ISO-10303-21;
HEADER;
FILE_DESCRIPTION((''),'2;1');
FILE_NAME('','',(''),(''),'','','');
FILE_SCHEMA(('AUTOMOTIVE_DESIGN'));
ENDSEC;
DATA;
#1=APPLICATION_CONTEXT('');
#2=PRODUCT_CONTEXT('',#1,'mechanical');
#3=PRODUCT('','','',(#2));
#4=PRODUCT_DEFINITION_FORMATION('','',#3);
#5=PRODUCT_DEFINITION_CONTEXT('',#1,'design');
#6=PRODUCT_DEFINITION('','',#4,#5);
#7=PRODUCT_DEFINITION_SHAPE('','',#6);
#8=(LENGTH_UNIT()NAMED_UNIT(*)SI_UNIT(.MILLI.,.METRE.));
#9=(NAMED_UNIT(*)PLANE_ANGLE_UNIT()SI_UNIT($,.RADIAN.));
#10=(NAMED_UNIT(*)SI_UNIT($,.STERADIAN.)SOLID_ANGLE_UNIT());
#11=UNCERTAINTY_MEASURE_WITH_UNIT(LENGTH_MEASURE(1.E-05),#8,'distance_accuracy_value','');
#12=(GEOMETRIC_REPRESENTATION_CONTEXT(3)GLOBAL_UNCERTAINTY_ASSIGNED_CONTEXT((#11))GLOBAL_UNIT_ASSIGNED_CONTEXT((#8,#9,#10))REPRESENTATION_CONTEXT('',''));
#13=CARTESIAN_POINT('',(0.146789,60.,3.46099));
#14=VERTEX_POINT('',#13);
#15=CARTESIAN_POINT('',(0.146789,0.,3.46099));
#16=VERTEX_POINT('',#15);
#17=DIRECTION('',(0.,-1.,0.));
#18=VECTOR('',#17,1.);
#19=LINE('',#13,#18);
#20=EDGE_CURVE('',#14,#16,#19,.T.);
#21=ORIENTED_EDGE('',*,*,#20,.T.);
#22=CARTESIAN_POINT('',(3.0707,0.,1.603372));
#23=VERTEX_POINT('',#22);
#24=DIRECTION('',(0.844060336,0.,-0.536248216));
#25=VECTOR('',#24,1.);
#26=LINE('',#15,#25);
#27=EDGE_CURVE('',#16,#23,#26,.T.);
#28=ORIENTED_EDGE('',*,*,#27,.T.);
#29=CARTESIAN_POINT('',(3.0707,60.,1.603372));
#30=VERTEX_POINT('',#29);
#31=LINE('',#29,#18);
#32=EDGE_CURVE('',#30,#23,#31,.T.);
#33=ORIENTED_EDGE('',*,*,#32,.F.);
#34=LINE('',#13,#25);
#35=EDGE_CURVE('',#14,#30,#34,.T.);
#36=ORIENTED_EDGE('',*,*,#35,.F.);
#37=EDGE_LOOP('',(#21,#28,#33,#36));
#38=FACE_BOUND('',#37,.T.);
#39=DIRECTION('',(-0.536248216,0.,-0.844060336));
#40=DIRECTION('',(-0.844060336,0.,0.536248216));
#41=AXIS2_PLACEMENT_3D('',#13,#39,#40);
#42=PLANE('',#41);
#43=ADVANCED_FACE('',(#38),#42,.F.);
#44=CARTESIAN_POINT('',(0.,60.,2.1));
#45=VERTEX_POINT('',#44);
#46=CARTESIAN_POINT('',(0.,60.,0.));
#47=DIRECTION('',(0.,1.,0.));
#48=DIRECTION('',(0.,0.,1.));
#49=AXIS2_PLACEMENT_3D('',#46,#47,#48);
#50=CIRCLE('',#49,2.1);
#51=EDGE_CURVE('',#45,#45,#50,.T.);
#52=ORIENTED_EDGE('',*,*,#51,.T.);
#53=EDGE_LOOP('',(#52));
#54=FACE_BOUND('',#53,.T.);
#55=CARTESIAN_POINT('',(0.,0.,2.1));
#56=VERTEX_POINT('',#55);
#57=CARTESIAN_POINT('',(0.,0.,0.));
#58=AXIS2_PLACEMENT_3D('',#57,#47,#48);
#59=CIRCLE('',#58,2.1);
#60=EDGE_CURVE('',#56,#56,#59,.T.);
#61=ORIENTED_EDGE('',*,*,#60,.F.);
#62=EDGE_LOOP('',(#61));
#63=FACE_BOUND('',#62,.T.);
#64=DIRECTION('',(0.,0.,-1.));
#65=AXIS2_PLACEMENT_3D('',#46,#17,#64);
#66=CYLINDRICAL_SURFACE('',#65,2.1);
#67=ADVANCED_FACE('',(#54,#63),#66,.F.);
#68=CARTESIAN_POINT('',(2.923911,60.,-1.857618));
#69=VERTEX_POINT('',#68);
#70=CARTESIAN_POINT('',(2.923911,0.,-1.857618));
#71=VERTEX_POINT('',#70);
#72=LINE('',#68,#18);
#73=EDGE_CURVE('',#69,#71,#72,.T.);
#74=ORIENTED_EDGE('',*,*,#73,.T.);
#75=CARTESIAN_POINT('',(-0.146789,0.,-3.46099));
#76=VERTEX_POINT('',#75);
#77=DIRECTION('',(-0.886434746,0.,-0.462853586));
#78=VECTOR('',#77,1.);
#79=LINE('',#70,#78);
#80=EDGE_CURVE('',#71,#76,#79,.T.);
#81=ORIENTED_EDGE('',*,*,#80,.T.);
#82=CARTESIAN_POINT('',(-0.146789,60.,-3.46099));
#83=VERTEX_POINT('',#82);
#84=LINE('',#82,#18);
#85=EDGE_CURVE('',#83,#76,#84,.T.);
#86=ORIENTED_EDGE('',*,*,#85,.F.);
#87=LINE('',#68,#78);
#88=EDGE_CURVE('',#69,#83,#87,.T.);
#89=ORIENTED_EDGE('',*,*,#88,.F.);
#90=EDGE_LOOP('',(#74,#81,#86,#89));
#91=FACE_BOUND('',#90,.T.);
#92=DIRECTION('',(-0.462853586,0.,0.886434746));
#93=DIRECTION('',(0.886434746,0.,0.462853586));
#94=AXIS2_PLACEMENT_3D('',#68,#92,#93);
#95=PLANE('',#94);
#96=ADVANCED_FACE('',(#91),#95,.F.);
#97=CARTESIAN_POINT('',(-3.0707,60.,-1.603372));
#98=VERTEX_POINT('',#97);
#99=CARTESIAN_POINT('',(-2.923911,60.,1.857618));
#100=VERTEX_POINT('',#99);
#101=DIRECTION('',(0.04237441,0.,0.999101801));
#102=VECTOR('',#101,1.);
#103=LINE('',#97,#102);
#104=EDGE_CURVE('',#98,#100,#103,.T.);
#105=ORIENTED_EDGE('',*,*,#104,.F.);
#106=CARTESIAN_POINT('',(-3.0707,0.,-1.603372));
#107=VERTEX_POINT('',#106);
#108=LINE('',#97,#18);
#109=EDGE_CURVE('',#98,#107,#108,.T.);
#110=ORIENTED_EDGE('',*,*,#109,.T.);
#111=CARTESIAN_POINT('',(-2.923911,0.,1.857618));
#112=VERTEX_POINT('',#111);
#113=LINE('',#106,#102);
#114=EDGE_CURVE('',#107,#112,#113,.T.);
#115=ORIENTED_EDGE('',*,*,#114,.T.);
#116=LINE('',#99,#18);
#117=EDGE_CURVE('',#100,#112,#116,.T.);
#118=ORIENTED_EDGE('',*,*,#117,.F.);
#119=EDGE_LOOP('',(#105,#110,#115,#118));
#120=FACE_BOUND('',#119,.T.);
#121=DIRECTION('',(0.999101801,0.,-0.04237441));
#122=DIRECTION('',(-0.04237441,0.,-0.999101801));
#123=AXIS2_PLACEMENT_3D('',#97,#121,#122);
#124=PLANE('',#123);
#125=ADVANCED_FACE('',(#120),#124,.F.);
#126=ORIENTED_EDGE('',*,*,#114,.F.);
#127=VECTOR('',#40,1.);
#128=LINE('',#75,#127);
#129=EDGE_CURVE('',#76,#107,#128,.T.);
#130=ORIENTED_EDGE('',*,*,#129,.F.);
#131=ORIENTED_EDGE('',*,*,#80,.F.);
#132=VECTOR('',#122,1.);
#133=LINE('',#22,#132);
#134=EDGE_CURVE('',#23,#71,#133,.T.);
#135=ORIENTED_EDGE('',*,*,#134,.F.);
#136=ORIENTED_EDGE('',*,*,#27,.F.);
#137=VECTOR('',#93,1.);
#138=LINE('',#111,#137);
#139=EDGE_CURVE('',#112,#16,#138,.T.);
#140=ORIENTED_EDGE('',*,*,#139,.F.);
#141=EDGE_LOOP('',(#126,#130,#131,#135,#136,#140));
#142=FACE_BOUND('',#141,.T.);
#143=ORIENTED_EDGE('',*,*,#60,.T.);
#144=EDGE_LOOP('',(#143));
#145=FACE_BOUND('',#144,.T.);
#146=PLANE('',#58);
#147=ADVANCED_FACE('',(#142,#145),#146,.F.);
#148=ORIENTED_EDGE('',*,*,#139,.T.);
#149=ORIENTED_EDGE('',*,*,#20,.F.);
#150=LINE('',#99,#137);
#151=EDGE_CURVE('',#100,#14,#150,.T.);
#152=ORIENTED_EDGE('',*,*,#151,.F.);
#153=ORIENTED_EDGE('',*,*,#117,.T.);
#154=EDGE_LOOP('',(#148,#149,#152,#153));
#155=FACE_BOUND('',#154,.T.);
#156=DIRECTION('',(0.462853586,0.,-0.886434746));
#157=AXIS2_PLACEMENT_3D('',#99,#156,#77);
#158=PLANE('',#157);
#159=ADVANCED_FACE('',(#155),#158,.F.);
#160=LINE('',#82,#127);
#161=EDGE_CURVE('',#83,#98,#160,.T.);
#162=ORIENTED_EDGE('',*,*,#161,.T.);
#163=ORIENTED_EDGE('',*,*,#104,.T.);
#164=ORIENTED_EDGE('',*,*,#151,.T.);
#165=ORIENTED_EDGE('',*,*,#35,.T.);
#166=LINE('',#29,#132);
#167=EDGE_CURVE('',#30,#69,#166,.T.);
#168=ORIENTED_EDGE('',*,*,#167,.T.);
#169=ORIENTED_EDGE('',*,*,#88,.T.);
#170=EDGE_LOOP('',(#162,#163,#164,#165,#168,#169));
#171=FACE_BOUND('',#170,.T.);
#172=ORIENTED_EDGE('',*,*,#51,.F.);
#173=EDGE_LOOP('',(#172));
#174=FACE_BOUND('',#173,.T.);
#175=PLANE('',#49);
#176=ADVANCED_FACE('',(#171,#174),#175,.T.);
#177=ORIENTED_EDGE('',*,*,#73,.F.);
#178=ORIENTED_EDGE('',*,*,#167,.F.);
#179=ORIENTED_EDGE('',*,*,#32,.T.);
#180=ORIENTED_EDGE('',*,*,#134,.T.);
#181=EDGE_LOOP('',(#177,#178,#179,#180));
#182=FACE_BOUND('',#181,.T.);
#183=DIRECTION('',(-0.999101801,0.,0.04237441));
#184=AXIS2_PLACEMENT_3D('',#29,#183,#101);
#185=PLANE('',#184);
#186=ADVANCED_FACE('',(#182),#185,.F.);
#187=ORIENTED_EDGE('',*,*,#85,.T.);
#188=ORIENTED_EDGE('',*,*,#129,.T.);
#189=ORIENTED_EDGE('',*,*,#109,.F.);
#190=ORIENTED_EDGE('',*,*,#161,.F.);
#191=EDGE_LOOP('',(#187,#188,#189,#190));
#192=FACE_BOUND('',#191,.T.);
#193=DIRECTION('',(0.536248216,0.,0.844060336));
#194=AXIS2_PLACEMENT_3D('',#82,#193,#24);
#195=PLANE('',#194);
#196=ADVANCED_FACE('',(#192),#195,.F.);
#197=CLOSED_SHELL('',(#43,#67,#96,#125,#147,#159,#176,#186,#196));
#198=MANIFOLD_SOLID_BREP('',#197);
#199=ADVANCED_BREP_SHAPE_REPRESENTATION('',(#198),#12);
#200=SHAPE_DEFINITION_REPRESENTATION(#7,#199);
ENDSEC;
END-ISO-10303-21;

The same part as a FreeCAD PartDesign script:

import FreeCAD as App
import Part
import Sketcher

V = App.Vector


def add_polygon(sketch, points):
    """Adds a closed chain of lines whose ends are joined by coincident constraints."""
    first, n = sketch.GeometryCount, len(points)
    for a, b in zip(points, points[1:] + points[:1]):
        sketch.addGeometry(Part.LineSegment(App.Vector(*a, 0), App.Vector(*b, 0)), False)
    for i in range(n):
        sketch.addConstraint(Sketcher.Constraint("Coincident", first + i, 2, first + (i + 1) % n, 1))

doc = App.newDocument("Part")
body = doc.addObject("PartDesign::Body", "Body")

sketch1 = body.newObject("Sketcher::SketchObject", "Sketch")
sketch1.AttachmentSupport = (doc.getObject("XZ_Plane"), [""])
sketch1.MapMode = "FlatFace"
add_polygon(sketch1, [(3.1, 1.6), (2.9, -1.9), (-0.1, -3.5), (-3.1, -1.6), (-2.9, 1.9), (0.1, 3.5)])
sketch1.addGeometry(Part.Circle(V(0, 0, 0), V(0, 0, 1), 2.1), False)
sketch1.addConstraint([
    Sketcher.Constraint("Coincident", 6, 3, -1, 1),
    Sketcher.Constraint("Symmetric", 0, 2, 3, 2, -1, 1),
    Sketcher.Constraint("Symmetric", 1, 2, 4, 2, -1, 1),
    Sketcher.Constraint("Symmetric", 2, 2, 5, 2, -1, 1),
    Sketcher.Constraint("Equal", 0, 1),
    Sketcher.Constraint("Equal", 1, 2),
    Sketcher.Constraint("Diameter", 6, 4.2),
    Sketcher.Constraint("Distance", 0, 3.464102),
    Sketcher.Constraint("DistanceX", 2, 2, -1, 1, 3.0707),
    Sketcher.Constraint("DistanceX", 1, 2, 0, 2, 3.0707),
    Sketcher.Constraint("DistanceX", -1, 1, 0, 2, 2.923911),
])
pad1 = body.newObject("PartDesign::Pad", "Pad")
pad1.Profile = sketch1
pad1.Length = 60
pad1.Reversed = True

doc.recompute()
